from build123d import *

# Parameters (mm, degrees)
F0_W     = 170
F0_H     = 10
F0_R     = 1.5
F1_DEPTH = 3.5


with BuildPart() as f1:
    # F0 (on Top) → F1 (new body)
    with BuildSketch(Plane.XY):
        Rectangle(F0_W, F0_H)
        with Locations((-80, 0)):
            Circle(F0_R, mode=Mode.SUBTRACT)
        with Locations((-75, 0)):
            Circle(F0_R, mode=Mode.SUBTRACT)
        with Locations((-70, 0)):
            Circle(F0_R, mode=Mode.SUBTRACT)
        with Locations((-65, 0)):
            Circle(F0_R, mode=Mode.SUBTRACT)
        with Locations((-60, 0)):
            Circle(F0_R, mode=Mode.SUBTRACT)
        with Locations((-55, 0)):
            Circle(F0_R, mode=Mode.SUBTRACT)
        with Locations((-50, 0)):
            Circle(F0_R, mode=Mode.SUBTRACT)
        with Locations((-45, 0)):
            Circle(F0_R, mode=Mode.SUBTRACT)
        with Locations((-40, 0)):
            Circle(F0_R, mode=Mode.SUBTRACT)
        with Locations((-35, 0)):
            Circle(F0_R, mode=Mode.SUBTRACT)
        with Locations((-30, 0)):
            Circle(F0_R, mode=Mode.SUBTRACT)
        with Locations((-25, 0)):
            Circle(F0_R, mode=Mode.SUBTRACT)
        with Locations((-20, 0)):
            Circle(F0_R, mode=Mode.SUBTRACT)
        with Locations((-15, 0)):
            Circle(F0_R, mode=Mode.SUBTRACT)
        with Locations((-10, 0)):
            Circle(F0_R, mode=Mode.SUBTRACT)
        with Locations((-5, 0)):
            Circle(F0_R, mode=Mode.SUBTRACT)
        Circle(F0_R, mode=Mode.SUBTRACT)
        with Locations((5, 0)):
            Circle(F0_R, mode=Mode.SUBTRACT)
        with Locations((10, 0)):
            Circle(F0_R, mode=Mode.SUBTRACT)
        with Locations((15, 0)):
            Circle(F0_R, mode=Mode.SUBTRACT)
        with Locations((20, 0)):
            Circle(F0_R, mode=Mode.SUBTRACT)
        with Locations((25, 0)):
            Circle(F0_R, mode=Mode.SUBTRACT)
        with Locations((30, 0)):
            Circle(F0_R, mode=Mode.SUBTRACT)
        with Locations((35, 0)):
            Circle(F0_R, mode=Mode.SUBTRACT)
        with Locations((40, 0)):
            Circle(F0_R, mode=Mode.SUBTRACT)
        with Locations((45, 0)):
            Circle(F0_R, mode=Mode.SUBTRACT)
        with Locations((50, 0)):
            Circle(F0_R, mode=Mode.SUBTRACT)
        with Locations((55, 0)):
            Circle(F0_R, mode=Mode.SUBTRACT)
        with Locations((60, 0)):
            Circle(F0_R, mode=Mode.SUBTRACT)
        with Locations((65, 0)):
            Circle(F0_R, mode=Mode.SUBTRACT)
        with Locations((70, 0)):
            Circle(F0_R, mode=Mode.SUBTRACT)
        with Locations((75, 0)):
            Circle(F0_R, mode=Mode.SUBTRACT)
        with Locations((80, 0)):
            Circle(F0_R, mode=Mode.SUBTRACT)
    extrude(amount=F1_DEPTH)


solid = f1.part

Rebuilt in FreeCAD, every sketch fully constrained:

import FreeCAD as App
import Part
import Sketcher
Q = App.Units.Quantity

doc = App.newDocument("Part")
params = doc.addObject("Spreadsheet::Sheet", "Params")
for row, (alias, value) in enumerate([
    ("sketch1_diameter", "3 mm"),
    ("sketch1_width", "170 mm"),
    ("sketch1_height", "10 mm"),
    ("pad1_length", "3.5 mm"),
], start=1):
    params.set(f"A{row}", alias)
    params.set(f"B{row}", "=" + value)
    params.setAlias(f"B{row}", alias)

body = doc.addObject("PartDesign::Body", "Body")

# Sketch on XY plane
sketch1 = body.newObject("Sketcher::SketchObject", "Sketch")
sketch1.AttachmentSupport = (doc.getObject("XY_Plane"), [""])
sketch1.MapMode = "FlatFace"
sketch1.addGeometry(Part.LineSegment(App.Vector(-85, 5, 0), App.Vector(-85, -5, 0)), False)
sketch1.addGeometry(Part.LineSegment(App.Vector(-85, -5, 0), App.Vector(85, -5, 0)), False)
sketch1.addGeometry(Part.LineSegment(App.Vector(85, -5, 0), App.Vector(85, 5, 0)), False)
sketch1.addGeometry(Part.LineSegment(App.Vector(85, 5, 0), App.Vector(-85, 5, 0)), False)
sketch1.addGeometry(Part.Circle(App.Vector(-80, 0, 0), App.Vector(0, 0, 1), 1.5), False)
sketch1.addGeometry(Part.Circle(App.Vector(-75, 0, 0), App.Vector(0, 0, 1), 1.5), False)
sketch1.addGeometry(Part.Circle(App.Vector(-70, 0, 0), App.Vector(0, 0, 1), 1.5), False)
sketch1.addGeometry(Part.Circle(App.Vector(-65, 0, 0), App.Vector(0, 0, 1), 1.5), False)
sketch1.addGeometry(Part.Circle(App.Vector(-60, 0, 0), App.Vector(0, 0, 1), 1.5), False)
sketch1.addGeometry(Part.Circle(App.Vector(-55, 0, 0), App.Vector(0, 0, 1), 1.5), False)
sketch1.addGeometry(Part.Circle(App.Vector(-50, 0, 0), App.Vector(0, 0, 1), 1.5), False)
sketch1.addGeometry(Part.Circle(App.Vector(-45, 0, 0), App.Vector(0, 0, 1), 1.5), False)
sketch1.addGeometry(Part.Circle(App.Vector(-40, 0, 0), App.Vector(0, 0, 1), 1.5), False)
sketch1.addGeometry(Part.Circle(App.Vector(-35, 0, 0), App.Vector(0, 0, 1), 1.5), False)
sketch1.addGeometry(Part.Circle(App.Vector(-30, 0, 0), App.Vector(0, 0, 1), 1.5), False)
sketch1.addGeometry(Part.Circle(App.Vector(-25, 0, 0), App.Vector(0, 0, 1), 1.5), False)
sketch1.addGeometry(Part.Circle(App.Vector(-20, 0, 0), App.Vector(0, 0, 1), 1.5), False)
sketch1.addGeometry(Part.Circle(App.Vector(-15, 0, 0), App.Vector(0, 0, 1), 1.5), False)
sketch1.addGeometry(Part.Circle(App.Vector(-10, 0, 0), App.Vector(0, 0, 1), 1.5), False)
sketch1.addGeometry(Part.Circle(App.Vector(-5, 0, 0), App.Vector(0, 0, 1), 1.5), False)
sketch1.addGeometry(Part.Circle(App.Vector(0, 0, 0), App.Vector(0, 0, 1), 1.5), False)
sketch1.addGeometry(Part.Circle(App.Vector(5, 0, 0), App.Vector(0, 0, 1), 1.5), False)
sketch1.addGeometry(Part.Circle(App.Vector(10, 0, 0), App.Vector(0, 0, 1), 1.5), False)
sketch1.addGeometry(Part.Circle(App.Vector(15, 0, 0), App.Vector(0, 0, 1), 1.5), False)
sketch1.addGeometry(Part.Circle(App.Vector(20, 0, 0), App.Vector(0, 0, 1), 1.5), False)
sketch1.addGeometry(Part.Circle(App.Vector(25, 0, 0), App.Vector(0, 0, 1), 1.5), False)
sketch1.addGeometry(Part.Circle(App.Vector(30, 0, 0), App.Vector(0, 0, 1), 1.5), False)
sketch1.addGeometry(Part.Circle(App.Vector(35, 0, 0), App.Vector(0, 0, 1), 1.5), False)
sketch1.addGeometry(Part.Circle(App.Vector(40, 0, 0), App.Vector(0, 0, 1), 1.5), False)
sketch1.addGeometry(Part.Circle(App.Vector(45, 0, 0), App.Vector(0, 0, 1), 1.5), False)
sketch1.addGeometry(Part.Circle(App.Vector(50, 0, 0), App.Vector(0, 0, 1), 1.5), False)
sketch1.addGeometry(Part.Circle(App.Vector(55, 0, 0), App.Vector(0, 0, 1), 1.5), False)
sketch1.addGeometry(Part.Circle(App.Vector(60, 0, 0), App.Vector(0, 0, 1), 1.5), False)
sketch1.addGeometry(Part.Circle(App.Vector(65, 0, 0), App.Vector(0, 0, 1), 1.5), False)
sketch1.addGeometry(Part.Circle(App.Vector(70, 0, 0), App.Vector(0, 0, 1), 1.5), False)
sketch1.addGeometry(Part.Circle(App.Vector(75, 0, 0), App.Vector(0, 0, 1), 1.5), False)
sketch1.addGeometry(Part.Circle(App.Vector(80, 0, 0), App.Vector(0, 0, 1), 1.5), False)
sketch1.addConstraint(Sketcher.Constraint("Coincident", 0, 2, 1, 1))
sketch1.addConstraint(Sketcher.Constraint("Coincident", 1, 2, 2, 1))
sketch1.addConstraint(Sketcher.Constraint("Coincident", 2, 2, 3, 1))
sketch1.addConstraint(Sketcher.Constraint("Coincident", 3, 2, 0, 1))
sketch1.addConstraint(Sketcher.Constraint("Vertical", 0))
sketch1.addConstraint(Sketcher.Constraint("Horizontal", 1))
sketch1.addConstraint(Sketcher.Constraint("Vertical", 2))
sketch1.addConstraint(Sketcher.Constraint("Horizontal", 3))
sketch1.addConstraint(Sketcher.Constraint("Coincident", 20, 3, -1, 1))
sketch1.addConstraint(Sketcher.Constraint("Equal", 4, 5))
sketch1.addConstraint(Sketcher.Constraint("Equal", 5, 6))
sketch1.addConstraint(Sketcher.Constraint("Equal", 6, 7))
sketch1.addConstraint(Sketcher.Constraint("Equal", 7, 8))
sketch1.addConstraint(Sketcher.Constraint("Equal", 8, 9))
sketch1.addConstraint(Sketcher.Constraint("Equal", 9, 10))
sketch1.addConstraint(Sketcher.Constraint("Equal", 10, 11))
sketch1.addConstraint(Sketcher.Constraint("Equal", 11, 12))
sketch1.addConstraint(Sketcher.Constraint("Equal", 12, 13))
sketch1.addConstraint(Sketcher.Constraint("Equal", 13, 14))
sketch1.addConstraint(Sketcher.Constraint("Equal", 14, 15))
sketch1.addConstraint(Sketcher.Constraint("Equal", 15, 16))
sketch1.addConstraint(Sketcher.Constraint("Equal", 16, 17))
sketch1.addConstraint(Sketcher.Constraint("Equal", 17, 18))
sketch1.addConstraint(Sketcher.Constraint("Equal", 18, 19))
sketch1.addConstraint(Sketcher.Constraint("Equal", 19, 20))
sketch1.addConstraint(Sketcher.Constraint("Equal", 20, 21))
sketch1.addConstraint(Sketcher.Constraint("Equal", 21, 22))
sketch1.addConstraint(Sketcher.Constraint("Equal", 22, 23))
sketch1.addConstraint(Sketcher.Constraint("Equal", 23, 24))
sketch1.addConstraint(Sketcher.Constraint("Equal", 24, 25))
sketch1.addConstraint(Sketcher.Constraint("Equal", 25, 26))
sketch1.addConstraint(Sketcher.Constraint("Equal", 26, 27))
sketch1.addConstraint(Sketcher.Constraint("Equal", 27, 28))
sketch1.addConstraint(Sketcher.Constraint("Equal", 28, 29))
sketch1.addConstraint(Sketcher.Constraint("Equal", 29, 30))
sketch1.addConstraint(Sketcher.Constraint("Equal", 30, 31))
sketch1.addConstraint(Sketcher.Constraint("Equal", 31, 32))
sketch1.addConstraint(Sketcher.Constraint("Equal", 32, 33))
sketch1.addConstraint(Sketcher.Constraint("Equal", 33, 34))
sketch1.addConstraint(Sketcher.Constraint("Equal", 34, 35))
sketch1.addConstraint(Sketcher.Constraint("Equal", 35, 36))
sketch1.addConstraint(Sketcher.Constraint("Symmetric", 19, 3, 21, 3, -1, 1))
sketch1.addConstraint(Sketcher.Constraint("Symmetric", 18, 3, 22, 3, -1, 1))
sketch1.addConstraint(Sketcher.Constraint("Symmetric", 17, 3, 23, 3, -1, 1))
sketch1.addConstraint(Sketcher.Constraint("Symmetric", 16, 3, 24, 3, -1, 1))
sketch1.addConstraint(Sketcher.Constraint("Symmetric", 15, 3, 25, 3, -1, 1))
sketch1.addConstraint(Sketcher.Constraint("Symmetric", 14, 3, 26, 3, -1, 1))
sketch1.addConstraint(Sketcher.Constraint("Symmetric", 13, 3, 27, 3, -1, 1))
sketch1.addConstraint(Sketcher.Constraint("Symmetric", 12, 3, 28, 3, -1, 1))
sketch1.addConstraint(Sketcher.Constraint("Symmetric", 11, 3, 29, 3, -1, 1))
sketch1.addConstraint(Sketcher.Constraint("Symmetric", 10, 3, 30, 3, -1, 1))
sketch1.addConstraint(Sketcher.Constraint("Symmetric", 9, 3, 31, 3, -1, 1))
sketch1.addConstraint(Sketcher.Constraint("Symmetric", 8, 3, 32, 3, -1, 1))
sketch1.addConstraint(Sketcher.Constraint("Symmetric", 7, 3, 33, 3, -1, 1))
sketch1.addConstraint(Sketcher.Constraint("Symmetric", 6, 3, 34, 3, -1, 1))
sketch1.addConstraint(Sketcher.Constraint("Symmetric", 5, 3, 35, 3, -1, 1))
sketch1.addConstraint(Sketcher.Constraint("Symmetric", 4, 3, 36, 3, -1, 1))
sketch1.addConstraint(Sketcher.Constraint("Symmetric", 0, 2, 2, 2, -1, 1))
sketch1.addConstraint(Sketcher.Constraint("PointOnObject", 4, 3, -1))
sketch1.addConstraint(Sketcher.Constraint("PointOnObject", 5, 3, -1))
sketch1.addConstraint(Sketcher.Constraint("PointOnObject", 6, 3, -1))
sketch1.addConstraint(Sketcher.Constraint("PointOnObject", 7, 3, -1))
sketch1.addConstraint(Sketcher.Constraint("PointOnObject", 8, 3, -1))
sketch1.addConstraint(Sketcher.Constraint("PointOnObject", 9, 3, -1))
sketch1.addConstraint(Sketcher.Constraint("PointOnObject", 10, 3, -1))
sketch1.addConstraint(Sketcher.Constraint("PointOnObject", 11, 3, -1))
sketch1.addConstraint(Sketcher.Constraint("PointOnObject", 12, 3, -1))
sketch1.addConstraint(Sketcher.Constraint("PointOnObject", 13, 3, -1))
sketch1.addConstraint(Sketcher.Constraint("PointOnObject", 14, 3, -1))
sketch1.addConstraint(Sketcher.Constraint("PointOnObject", 15, 3, -1))
sketch1.addConstraint(Sketcher.Constraint("PointOnObject", 16, 3, -1))
sketch1.addConstraint(Sketcher.Constraint("PointOnObject", 17, 3, -1))
sketch1.addConstraint(Sketcher.Constraint("PointOnObject", 18, 3, -1))
sketch1.addConstraint(Sketcher.Constraint("PointOnObject", 19, 3, -1))
sketch1.addConstraint(Sketcher.Constraint("Diameter", 4, Q("3 mm")))
sketch1.addConstraint(Sketcher.Constraint("DistanceX", 1, 1, 1, 2, Q("170 mm")))
sketch1.addConstraint(Sketcher.Constraint("DistanceY", 0, 2, 0, 1, Q("10 mm")))
sketch1.addConstraint(Sketcher.Constraint("DistanceX", 4, 3, -1, 1, Q("80 mm")))
sketch1.addConstraint(Sketcher.Constraint("DistanceX", 5, 3, -1, 1, Q("75 mm")))
sketch1.addConstraint(Sketcher.Constraint("DistanceX", 6, 3, -1, 1, Q("70 mm")))
sketch1.addConstraint(Sketcher.Constraint("DistanceX", 7, 3, -1, 1, Q("65 mm")))
sketch1.addConstraint(Sketcher.Constraint("DistanceX", 8, 3, -1, 1, Q("60 mm")))
sketch1.addConstraint(Sketcher.Constraint("DistanceX", 9, 3, -1, 1, Q("55 mm")))
sketch1.addConstraint(Sketcher.Constraint("DistanceX", 10, 3, -1, 1, Q("50 mm")))
sketch1.addConstraint(Sketcher.Constraint("DistanceX", 11, 3, -1, 1, Q("45 mm")))
sketch1.addConstraint(Sketcher.Constraint("DistanceX", 12, 3, -1, 1, Q("40 mm")))
sketch1.addConstraint(Sketcher.Constraint("DistanceX", 13, 3, -1, 1, Q("35 mm")))
sketch1.addConstraint(Sketcher.Constraint("DistanceX", 14, 3, -1, 1, Q("30 mm")))
sketch1.addConstraint(Sketcher.Constraint("DistanceX", 15, 3, -1, 1, Q("25 mm")))
sketch1.addConstraint(Sketcher.Constraint("DistanceX", 16, 3, -1, 1, Q("20 mm")))
sketch1.addConstraint(Sketcher.Constraint("DistanceX", 17, 3, -1, 1, Q("15 mm")))
sketch1.addConstraint(Sketcher.Constraint("DistanceX", 18, 3, -1, 1, Q("10 mm")))
sketch1.addConstraint(Sketcher.Constraint("DistanceX", 19, 3, -1, 1, Q("5 mm")))
sketch1.setExpression("Constraints[74]", "Params.sketch1_diameter")
sketch1.setExpression("Constraints[75]", "Params.sketch1_width")
sketch1.setExpression("Constraints[76]", "Params.sketch1_height")
pad1 = body.newObject("PartDesign::Pad", "Pad")
pad1.Profile = sketch1
pad1.setExpression("Length", "Params.pad1_length")

doc.recompute()
